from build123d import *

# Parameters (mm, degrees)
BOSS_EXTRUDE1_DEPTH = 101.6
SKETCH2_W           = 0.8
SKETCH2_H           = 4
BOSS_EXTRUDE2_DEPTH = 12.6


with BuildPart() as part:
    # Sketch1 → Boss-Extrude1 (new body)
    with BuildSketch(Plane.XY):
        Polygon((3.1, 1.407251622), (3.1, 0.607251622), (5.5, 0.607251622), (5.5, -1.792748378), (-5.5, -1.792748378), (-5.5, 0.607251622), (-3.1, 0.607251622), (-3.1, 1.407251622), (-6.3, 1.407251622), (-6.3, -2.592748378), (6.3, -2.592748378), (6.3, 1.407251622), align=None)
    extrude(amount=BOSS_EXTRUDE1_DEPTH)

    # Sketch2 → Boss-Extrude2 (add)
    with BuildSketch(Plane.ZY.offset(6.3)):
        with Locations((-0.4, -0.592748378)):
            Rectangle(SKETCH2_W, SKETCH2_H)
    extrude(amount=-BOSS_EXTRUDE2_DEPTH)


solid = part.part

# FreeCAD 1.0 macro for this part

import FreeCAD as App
import Part
import Sketcher

V = App.Vector
Q = App.Units.Quantity

doc = App.newDocument("Part")
body = doc.addObject("PartDesign::Body", "Body")

# Sketch on XY plane
sketch1 = body.newObject("Sketcher::SketchObject", "Sketch")
sketch1.AttachmentSupport = (doc.getObject("XY_Plane"), [""])
sketch1.MapMode = "FlatFace"
sketch1.addGeometry(Part.LineSegment(V(3.1, 1.4, 0), V(3.1, 0.6, 0)), False)
sketch1.addGeometry(Part.LineSegment(V(3.1, 0.6, 0), V(5.5, 0.6, 0)), False)
sketch1.addGeometry(Part.LineSegment(V(5.5, 0.6, 0), V(5.5, -1.8, 0)), False)
sketch1.addGeometry(Part.LineSegment(V(5.5, -1.8, 0), V(-5.5, -1.8, 0)), False)
sketch1.addGeometry(Part.LineSegment(V(-5.5, -1.8, 0), V(-5.5, 0.6, 0)), False)
sketch1.addGeometry(Part.LineSegment(V(-5.5, 0.6, 0), V(-3.1, 0.6, 0)), False)
sketch1.addGeometry(Part.LineSegment(V(-3.1, 0.6, 0), V(-3.1, 1.4, 0)), False)
sketch1.addGeometry(Part.LineSegment(V(-3.1, 1.4, 0), V(-6.3, 1.4, 0)), False)
sketch1.addGeometry(Part.LineSegment(V(-6.3, 1.4, 0), V(-6.3, -2.6, 0)), False)
sketch1.addGeometry(Part.LineSegment(V(-6.3, -2.6, 0), V(6.3, -2.6, 0)), False)
sketch1.addGeometry(Part.LineSegment(V(6.3, -2.6, 0), V(6.3, 1.4, 0)), False)
sketch1.addGeometry(Part.LineSegment(V(6.3, 1.4, 0), V(3.1, 1.4, 0)), False)
sketch1.addConstraint(Sketcher.Constraint("Coincident", 0, 2, 1, 1))
sketch1.addConstraint(Sketcher.Constraint("Coincident", 1, 2, 2, 1))
sketch1.addConstraint(Sketcher.Constraint("Coincident", 2, 2, 3, 1))
sketch1.addConstraint(Sketcher.Constraint("Coincident", 3, 2, 4, 1))
sketch1.addConstraint(Sketcher.Constraint("Coincident", 4, 2, 5, 1))
sketch1.addConstraint(Sketcher.Constraint("Coincident", 5, 2, 6, 1))
sketch1.addConstraint(Sketcher.Constraint("Coincident", 6, 2, 7, 1))
sketch1.addConstraint(Sketcher.Constraint("Coincident", 7, 2, 8, 1))
sketch1.addConstraint(Sketcher.Constraint("Coincident", 8, 2, 9, 1))
sketch1.addConstraint(Sketcher.Constraint("Coincident", 9, 2, 10, 1))
sketch1.addConstraint(Sketcher.Constraint("Coincident", 10, 2, 11, 1))
sketch1.addConstraint(Sketcher.Constraint("Coincident", 11, 2, 0, 1))
sketch1.addConstraint(Sketcher.Constraint("Vertical", 0))
sketch1.addConstraint(Sketcher.Constraint("Horizontal", 1))
sketch1.addConstraint(Sketcher.Constraint("Vertical", 2))
sketch1.addConstraint(Sketcher.Constraint("Horizontal", 3))
sketch1.addConstraint(Sketcher.Constraint("Vertical", 4))
sketch1.addConstraint(Sketcher.Constraint("Horizontal", 5))
sketch1.addConstraint(Sketcher.Constraint("Vertical", 6))
sketch1.addConstraint(Sketcher.Constraint("Horizontal", 7))
sketch1.addConstraint(Sketcher.Constraint("Vertical", 8))
sketch1.addConstraint(Sketcher.Constraint("Horizontal", 9))
sketch1.addConstraint(Sketcher.Constraint("Vertical", 10))
sketch1.addConstraint(Sketcher.Constraint("Horizontal", 11))
sketch1.addConstraint(Sketcher.Constraint("Symmetric", 1, 2, 4, 2, -2))
sketch1.addConstraint(Sketcher.Constraint("Symmetric", 7, 2, 10, 2, -2))
sketch1.addConstraint(Sketcher.Constraint("Equal", 1, 5))
sketch1.addConstraint(Sketcher.Constraint("Equal", 5, 2))
sketch1.addConstraint(Sketcher.Constraint("DistanceX", 3, 2, 3, 1, Q("11 mm")))
sketch1.addConstraint(Sketcher.Constraint("DistanceY", 8, 2, 8, 1, Q("4 mm")))
sketch1.addConstraint(Sketcher.Constraint("DistanceX", 1, 1, 1, 2, Q("2.4 mm")))
sketch1.addConstraint(Sketcher.Constraint("DistanceX", 7, 2, 7, 1, Q("3.2 mm")))
sketch1.addConstraint(Sketcher.Constraint("DistanceY", 0, 2, 0, 1, Q("0.8 mm")))
sketch1.addConstraint(Sketcher.Constraint("DistanceY", -1, 1, 0, 2, Q("0.607252 mm")))
pad1 = body.newObject("PartDesign::Pad", "Pad")
pad1.Profile = sketch1
pad1.Length = 101.6

# Sketch on YZ plane
sketch2 = body.newObject("Sketcher::SketchObject", "Sketch001")
sketch2.AttachmentSupport = (doc.getObject("YZ_Plane"), [""])
sketch2.MapMode = "FlatFace"
sketch2.AttachmentOffset = App.Placement(V(0, 0, -6.3), App.Rotation())
sketch2.addGeometry(Part.LineSegment(V(1.4, -0.8, 0), V(-2.6, -0.8, 0)), False)
sketch2.addGeometry(Part.LineSegment(V(-2.6, -0.8, 0), V(-2.6, 0, 0)), False)
sketch2.addGeometry(Part.LineSegment(V(-2.6, 0, 0), V(1.4, 0, 0)), False)
sketch2.addGeometry(Part.LineSegment(V(1.4, 0, 0), V(1.4, -0.8, 0)), False)
sketch2.addConstraint(Sketcher.Constraint("Coincident", 0, 2, 1, 1))
sketch2.addConstraint(Sketcher.Constraint("Coincident", 1, 2, 2, 1))
sketch2.addConstraint(Sketcher.Constraint("Coincident", 2, 2, 3, 1))
sketch2.addConstraint(Sketcher.Constraint("Coincident", 3, 2, 0, 1))
sketch2.addConstraint(Sketcher.Constraint("Horizontal", 0))
sketch2.addConstraint(Sketcher.Constraint("Vertical", 1))
sketch2.addConstraint(Sketcher.Constraint("Horizontal", 2))
sketch2.addConstraint(Sketcher.Constraint("Vertical", 3))
sketch2.addConstraint(Sketcher.Constraint("PointOnObject", 1, 2, -1))
sketch2.addConstraint(Sketcher.Constraint("DistanceX", 0, 2, 0, 1, Q("4 mm")))
sketch2.addConstraint(Sketcher.Constraint("DistanceY", 1, 1, 1, 2, Q("0.8 mm")))
sketch2.addConstraint(Sketcher.Constraint("DistanceX", 0, 2, -1, 1, Q("2.592748 mm")))
pad2 = body.newObject("PartDesign::Pad", "Pad001")
pad2.Profile = sketch2
pad2.Length = 12.6

doc.recompute()
